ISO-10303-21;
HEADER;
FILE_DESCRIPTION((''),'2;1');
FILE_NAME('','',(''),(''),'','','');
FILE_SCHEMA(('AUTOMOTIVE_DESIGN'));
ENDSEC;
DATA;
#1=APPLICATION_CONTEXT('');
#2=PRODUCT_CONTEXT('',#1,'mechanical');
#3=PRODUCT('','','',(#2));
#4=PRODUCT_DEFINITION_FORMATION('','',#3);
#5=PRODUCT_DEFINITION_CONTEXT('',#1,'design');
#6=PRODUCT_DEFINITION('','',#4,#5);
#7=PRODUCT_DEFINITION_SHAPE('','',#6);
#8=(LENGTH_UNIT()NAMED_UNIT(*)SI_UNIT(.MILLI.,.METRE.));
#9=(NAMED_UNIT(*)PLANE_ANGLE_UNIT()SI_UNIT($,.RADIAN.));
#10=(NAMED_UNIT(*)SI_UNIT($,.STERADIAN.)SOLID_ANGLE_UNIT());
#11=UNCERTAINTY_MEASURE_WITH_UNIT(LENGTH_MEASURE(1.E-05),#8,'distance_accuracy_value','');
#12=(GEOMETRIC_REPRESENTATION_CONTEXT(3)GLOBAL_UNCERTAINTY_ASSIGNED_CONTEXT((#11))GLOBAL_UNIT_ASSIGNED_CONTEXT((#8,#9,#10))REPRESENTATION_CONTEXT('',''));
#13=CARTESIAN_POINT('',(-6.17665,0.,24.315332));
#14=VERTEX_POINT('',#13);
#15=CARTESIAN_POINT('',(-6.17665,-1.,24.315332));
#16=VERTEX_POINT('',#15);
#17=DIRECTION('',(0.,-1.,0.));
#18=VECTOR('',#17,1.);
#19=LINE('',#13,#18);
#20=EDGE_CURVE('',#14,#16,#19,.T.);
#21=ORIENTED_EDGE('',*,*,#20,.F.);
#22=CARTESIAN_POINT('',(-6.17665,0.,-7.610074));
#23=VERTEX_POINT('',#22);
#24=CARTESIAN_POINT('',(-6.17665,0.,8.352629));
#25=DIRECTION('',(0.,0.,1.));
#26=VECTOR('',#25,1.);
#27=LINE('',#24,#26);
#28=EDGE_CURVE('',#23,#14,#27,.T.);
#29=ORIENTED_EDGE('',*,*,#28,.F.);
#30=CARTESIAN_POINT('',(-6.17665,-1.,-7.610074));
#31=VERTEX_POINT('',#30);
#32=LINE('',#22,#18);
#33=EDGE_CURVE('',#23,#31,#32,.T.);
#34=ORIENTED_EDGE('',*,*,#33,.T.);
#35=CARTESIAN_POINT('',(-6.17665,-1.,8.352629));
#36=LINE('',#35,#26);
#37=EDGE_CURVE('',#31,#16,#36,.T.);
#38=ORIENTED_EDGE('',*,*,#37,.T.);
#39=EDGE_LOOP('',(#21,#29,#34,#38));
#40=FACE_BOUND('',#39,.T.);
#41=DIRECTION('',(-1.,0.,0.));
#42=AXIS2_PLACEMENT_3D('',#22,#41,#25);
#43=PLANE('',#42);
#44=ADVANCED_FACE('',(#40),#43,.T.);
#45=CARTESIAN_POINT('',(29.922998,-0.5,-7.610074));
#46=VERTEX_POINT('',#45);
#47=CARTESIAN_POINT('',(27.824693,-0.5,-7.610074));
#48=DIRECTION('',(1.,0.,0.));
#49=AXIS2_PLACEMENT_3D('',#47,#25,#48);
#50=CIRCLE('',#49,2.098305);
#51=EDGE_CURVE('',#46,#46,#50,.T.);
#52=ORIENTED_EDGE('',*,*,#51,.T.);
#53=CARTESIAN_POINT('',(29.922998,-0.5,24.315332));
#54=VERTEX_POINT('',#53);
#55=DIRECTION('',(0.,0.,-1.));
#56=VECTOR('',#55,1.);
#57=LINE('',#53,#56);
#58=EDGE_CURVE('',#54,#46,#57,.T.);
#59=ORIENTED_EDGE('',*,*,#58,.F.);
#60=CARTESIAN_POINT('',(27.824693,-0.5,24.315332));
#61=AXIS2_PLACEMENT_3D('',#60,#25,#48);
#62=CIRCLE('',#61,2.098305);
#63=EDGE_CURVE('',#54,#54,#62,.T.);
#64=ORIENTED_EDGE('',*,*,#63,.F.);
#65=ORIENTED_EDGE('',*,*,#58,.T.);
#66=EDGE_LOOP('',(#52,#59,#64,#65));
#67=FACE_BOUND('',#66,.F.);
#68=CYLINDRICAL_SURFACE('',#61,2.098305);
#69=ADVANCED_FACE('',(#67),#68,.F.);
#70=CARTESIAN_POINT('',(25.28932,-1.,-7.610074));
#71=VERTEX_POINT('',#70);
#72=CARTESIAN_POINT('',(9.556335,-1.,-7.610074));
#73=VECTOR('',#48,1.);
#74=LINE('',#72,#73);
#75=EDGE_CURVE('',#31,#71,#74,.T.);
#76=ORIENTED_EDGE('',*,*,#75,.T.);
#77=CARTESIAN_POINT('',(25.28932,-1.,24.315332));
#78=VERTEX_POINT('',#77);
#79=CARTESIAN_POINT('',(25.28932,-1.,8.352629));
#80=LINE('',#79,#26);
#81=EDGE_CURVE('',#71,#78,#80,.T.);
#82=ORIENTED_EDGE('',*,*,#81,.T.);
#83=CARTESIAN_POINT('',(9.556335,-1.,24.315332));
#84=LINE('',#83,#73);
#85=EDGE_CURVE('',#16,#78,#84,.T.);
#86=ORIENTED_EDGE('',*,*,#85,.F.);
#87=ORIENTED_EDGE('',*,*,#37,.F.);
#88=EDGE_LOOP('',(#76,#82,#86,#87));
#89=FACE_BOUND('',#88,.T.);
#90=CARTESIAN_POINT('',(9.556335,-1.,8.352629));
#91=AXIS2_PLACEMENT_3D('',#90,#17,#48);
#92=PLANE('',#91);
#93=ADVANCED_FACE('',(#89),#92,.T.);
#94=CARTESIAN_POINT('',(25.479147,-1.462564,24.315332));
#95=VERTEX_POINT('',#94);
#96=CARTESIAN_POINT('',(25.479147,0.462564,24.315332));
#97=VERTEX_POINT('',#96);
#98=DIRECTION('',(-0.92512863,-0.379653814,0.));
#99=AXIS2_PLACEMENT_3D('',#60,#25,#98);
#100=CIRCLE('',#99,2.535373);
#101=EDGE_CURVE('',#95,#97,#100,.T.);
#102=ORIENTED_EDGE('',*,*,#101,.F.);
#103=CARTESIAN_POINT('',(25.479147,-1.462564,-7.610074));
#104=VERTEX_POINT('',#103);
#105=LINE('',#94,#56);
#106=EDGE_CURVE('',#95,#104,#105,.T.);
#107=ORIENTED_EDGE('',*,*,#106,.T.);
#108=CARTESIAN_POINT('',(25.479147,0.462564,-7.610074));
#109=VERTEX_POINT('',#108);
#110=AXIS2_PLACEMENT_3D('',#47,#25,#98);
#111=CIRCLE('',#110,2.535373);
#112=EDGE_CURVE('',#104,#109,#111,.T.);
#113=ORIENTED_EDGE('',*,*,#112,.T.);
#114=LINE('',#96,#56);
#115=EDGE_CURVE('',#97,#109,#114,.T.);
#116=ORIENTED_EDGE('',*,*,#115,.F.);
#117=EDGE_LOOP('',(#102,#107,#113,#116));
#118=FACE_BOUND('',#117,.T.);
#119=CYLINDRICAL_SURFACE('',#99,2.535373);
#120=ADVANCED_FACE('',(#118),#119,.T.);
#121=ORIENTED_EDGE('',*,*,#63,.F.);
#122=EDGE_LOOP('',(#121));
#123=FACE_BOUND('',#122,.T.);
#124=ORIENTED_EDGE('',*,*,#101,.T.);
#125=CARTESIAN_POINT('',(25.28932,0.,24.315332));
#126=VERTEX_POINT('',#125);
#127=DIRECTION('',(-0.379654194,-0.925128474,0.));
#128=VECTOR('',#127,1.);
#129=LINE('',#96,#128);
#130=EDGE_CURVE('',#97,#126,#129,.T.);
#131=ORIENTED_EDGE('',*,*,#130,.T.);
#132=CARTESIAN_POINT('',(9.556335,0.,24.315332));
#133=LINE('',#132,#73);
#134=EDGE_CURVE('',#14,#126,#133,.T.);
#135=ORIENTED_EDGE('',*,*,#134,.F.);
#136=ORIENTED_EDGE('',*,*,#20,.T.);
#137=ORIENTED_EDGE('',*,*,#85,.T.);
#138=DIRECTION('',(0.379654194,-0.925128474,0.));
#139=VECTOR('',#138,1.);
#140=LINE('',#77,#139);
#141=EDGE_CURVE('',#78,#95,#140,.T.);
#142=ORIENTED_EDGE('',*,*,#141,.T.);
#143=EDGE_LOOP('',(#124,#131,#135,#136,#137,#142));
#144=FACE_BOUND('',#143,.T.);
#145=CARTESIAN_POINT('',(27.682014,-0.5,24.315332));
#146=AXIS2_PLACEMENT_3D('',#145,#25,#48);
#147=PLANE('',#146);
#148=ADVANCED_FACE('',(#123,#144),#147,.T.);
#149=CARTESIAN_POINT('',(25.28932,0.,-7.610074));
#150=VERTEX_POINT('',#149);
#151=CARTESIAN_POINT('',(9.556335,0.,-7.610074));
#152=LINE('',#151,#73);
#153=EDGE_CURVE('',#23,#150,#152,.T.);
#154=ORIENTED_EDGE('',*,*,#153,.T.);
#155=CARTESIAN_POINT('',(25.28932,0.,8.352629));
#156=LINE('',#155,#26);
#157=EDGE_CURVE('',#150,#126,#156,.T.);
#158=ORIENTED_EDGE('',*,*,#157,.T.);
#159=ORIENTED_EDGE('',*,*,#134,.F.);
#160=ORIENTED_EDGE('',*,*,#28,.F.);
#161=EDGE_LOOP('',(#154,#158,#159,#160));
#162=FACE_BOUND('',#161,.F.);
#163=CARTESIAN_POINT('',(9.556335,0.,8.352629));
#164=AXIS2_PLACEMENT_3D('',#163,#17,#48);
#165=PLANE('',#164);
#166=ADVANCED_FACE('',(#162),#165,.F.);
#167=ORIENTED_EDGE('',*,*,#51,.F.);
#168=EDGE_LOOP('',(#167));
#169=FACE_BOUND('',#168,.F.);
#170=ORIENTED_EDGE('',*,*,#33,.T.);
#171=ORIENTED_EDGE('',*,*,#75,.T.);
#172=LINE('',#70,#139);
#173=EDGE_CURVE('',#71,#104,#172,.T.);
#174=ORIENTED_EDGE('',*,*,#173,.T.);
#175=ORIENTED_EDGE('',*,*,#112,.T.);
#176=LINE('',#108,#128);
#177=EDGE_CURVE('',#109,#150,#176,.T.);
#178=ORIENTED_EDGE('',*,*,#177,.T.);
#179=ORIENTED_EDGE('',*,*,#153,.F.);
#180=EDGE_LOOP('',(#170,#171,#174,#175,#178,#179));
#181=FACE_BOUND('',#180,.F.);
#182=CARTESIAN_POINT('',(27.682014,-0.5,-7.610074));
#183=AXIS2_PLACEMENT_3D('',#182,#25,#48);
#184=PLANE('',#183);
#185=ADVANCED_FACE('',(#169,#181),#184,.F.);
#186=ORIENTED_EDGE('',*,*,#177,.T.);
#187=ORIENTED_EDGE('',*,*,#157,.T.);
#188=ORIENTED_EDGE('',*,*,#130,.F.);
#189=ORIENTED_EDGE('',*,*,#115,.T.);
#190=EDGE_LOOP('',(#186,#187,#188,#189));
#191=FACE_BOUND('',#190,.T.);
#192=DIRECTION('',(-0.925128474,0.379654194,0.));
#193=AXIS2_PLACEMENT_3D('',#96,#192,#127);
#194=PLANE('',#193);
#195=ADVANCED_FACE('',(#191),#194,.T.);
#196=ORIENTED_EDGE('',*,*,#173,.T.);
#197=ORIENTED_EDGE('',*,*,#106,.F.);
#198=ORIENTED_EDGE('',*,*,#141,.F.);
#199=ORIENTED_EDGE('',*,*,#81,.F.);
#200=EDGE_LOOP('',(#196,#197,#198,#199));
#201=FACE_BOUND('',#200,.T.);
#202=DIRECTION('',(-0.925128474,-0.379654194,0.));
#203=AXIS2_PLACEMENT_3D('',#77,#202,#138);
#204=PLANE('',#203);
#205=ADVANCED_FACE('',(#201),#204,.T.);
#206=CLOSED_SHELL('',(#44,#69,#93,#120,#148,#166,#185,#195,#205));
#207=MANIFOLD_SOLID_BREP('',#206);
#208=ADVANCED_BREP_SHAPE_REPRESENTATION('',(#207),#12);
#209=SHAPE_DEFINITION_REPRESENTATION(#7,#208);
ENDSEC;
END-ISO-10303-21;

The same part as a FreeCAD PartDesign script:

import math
import FreeCAD as App
import Part
import Sketcher

V = App.Vector
Q = App.Units.Quantity

doc = App.newDocument("Part")
body = doc.addObject("PartDesign::Body", "Body")

sketch1 = body.newObject("Sketcher::SketchObject", "Sketch")
sketch1.AttachmentSupport = (doc.getObject("XZ_Plane"), [""])
sketch1.MapMode = "FlatFace"
sketch1.addGeometry([
    Part.LineSegment(V(-6.17665, 24.315332, 0), V(-6.17665, -7.610074, 0)),
    Part.LineSegment(V(-6.17665, -7.610074, 0), V(25.28932, -7.610074, 0)),
    Part.LineSegment(V(25.28932, -7.610074, 0), V(25.28932, 24.315332, 0)),
    Part.LineSegment(V(25.28932, 24.315332, 0), V(-6.17665, 24.315332, 0)),
], False)
sketch1.addConstraint([
    Sketcher.Constraint("Coincident", 0, 2, 1, 1),
    Sketcher.Constraint("Coincident", 1, 2, 2, 1),
    Sketcher.Constraint("Coincident", 2, 2, 3, 1),
    Sketcher.Constraint("Coincident", 3, 2, 0, 1),
    Sketcher.Constraint("Vertical", 0),
    Sketcher.Constraint("Horizontal", 1),
    Sketcher.Constraint("Vertical", 2),
    Sketcher.Constraint("Horizontal", 3),
    Sketcher.Constraint("DistanceX", 1, 1, 1, 2, Q("31.46597 mm")),
    Sketcher.Constraint("DistanceY", 0, 2, 0, 1, Q("31.925406 mm")),
    Sketcher.Constraint("DistanceX", 0, 2, -1, 1, Q("6.17665 mm")),
    Sketcher.Constraint("DistanceY", 0, 2, -1, 1, Q("7.610074 mm")),
])
pad1 = body.newObject("PartDesign::Pad", "Pad")
pad1.Profile = sketch1
pad1.Length = 1

sketch2 = body.newObject("Sketcher::SketchObject", "Sketch001")
sketch2.AttachmentSupport = (doc.getObject("XY_Plane"), [""])
sketch2.MapMode = "FlatFace"
sketch2.AttachmentOffset = App.Placement(V(0, 0, 24.315332), App.Rotation())
sketch2.addGeometry([
    Part.LineSegment(V(25.28932, -1, 0), V(25.479147, -1.462564, 0)),
    Part.ArcOfCircle(Part.Circle(V(27.824693, -0.5, 0), V(0, 0, 1), 2.535373), math.radians(-157.687759), math.radians(157.687759)),
    Part.LineSegment(V(25.479147, 0.462564, 0), V(25.28932, 0, 0)),
    Part.LineSegment(V(25.28932, 0, 0), V(25.28932, -1, 0)),
    Part.Circle(V(27.824693, -0.5, 0), V(0, 0, 1), 2.098305),
], False)
sketch2.addConstraint([
    Sketcher.Constraint("Tangent", 0, 2, 1, 1),
    Sketcher.Constraint("Tangent", 1, 2, 2, 1),
    Sketcher.Constraint("Coincident", 2, 2, 3, 1),
    Sketcher.Constraint("Coincident", 3, 2, 0, 1),
    Sketcher.Constraint("Vertical", 3),
    Sketcher.Constraint("Coincident", 4, 3, 1, 3),
    Sketcher.Constraint("PointOnObject", 2, 2, -1),
    Sketcher.Constraint("Vertical", 0, 2, 1, 2),
    Sketcher.Constraint("DistanceY", 3, 2, 3, 1, Q("1 mm")),
    Sketcher.Constraint("Distance", 0, Q("0.5 mm")),
    Sketcher.Constraint("Diameter", 4, Q("4.19661 mm")),
    Sketcher.Constraint("Radius", 1, Q("2.535373 mm")),
    Sketcher.Constraint("DistanceX", -1, 1, 2, 2, Q("25.28932 mm")),
])
pad2 = body.newObject("PartDesign::Pad", "Pad001")
pad2.Profile = sketch2
pad2.Length = 31.925406
pad2.Reversed = True

doc.recompute()
